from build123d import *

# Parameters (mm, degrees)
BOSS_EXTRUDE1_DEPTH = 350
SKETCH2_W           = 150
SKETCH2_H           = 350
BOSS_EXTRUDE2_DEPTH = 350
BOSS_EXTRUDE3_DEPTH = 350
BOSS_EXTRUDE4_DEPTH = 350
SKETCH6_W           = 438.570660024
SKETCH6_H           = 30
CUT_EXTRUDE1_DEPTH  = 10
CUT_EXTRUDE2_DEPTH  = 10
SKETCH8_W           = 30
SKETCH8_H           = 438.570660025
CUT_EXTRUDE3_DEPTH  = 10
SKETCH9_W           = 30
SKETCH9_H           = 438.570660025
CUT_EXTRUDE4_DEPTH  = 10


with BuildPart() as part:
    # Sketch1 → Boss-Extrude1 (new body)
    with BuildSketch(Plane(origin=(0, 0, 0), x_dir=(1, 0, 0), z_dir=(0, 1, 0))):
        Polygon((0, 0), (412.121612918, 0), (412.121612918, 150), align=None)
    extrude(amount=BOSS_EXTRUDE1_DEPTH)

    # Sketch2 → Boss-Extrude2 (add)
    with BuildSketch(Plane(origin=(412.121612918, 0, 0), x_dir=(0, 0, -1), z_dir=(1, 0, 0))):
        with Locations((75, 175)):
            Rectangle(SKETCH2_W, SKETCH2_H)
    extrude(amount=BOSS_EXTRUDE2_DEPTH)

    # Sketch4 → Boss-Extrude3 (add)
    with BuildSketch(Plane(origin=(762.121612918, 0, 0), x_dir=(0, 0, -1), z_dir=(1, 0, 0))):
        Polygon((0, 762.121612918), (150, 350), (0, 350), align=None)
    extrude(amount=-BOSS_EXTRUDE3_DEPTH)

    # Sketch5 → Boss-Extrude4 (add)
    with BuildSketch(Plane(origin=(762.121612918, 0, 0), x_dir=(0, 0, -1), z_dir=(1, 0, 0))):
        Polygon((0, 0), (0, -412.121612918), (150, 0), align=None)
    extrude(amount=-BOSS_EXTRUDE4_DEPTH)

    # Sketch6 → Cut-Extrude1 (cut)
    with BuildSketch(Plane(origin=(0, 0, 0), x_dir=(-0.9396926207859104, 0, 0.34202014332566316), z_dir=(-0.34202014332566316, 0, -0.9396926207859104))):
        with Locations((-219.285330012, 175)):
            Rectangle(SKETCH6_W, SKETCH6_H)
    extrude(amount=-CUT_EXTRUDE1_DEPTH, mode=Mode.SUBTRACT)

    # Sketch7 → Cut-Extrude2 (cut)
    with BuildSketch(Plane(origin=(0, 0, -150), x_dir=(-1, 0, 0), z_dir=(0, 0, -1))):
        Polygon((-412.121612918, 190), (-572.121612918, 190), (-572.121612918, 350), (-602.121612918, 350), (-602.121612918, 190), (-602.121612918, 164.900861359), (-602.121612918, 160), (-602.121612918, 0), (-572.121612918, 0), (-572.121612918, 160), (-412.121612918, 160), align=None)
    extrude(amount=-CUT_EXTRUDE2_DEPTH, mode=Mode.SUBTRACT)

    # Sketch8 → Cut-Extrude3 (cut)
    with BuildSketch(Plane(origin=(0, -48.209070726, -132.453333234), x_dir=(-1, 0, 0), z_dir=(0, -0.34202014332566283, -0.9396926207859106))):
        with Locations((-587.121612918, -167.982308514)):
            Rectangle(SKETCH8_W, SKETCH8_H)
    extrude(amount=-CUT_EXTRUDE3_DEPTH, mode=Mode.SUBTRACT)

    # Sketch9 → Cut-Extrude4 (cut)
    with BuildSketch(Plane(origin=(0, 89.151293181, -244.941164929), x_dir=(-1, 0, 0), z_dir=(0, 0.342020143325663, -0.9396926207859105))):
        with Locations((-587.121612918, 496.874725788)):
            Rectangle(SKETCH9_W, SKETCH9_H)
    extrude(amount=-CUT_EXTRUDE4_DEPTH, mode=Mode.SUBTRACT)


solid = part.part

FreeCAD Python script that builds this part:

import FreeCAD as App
import Part
import Sketcher
from FreeCAD import Vector
Q = App.Units.Quantity

doc = App.newDocument("Part")
body = doc.addObject("PartDesign::Body", "Body")

sketch1 = doc.addObject("Sketcher::SketchObject", "Sketch")
body.addObject(sketch1)
sketch1.AttachmentSupport = (doc.XZ_Plane, [""])
sketch1.MapMode = "FlatFace"
sketch1.addGeometry(Part.LineSegment(Vector(0, 0, 0), Vector(412, 0, 0)), False)
sketch1.addGeometry(Part.LineSegment(Vector(412, 0, 0), Vector(412, -150, 0)), False)
sketch1.addGeometry(Part.LineSegment(Vector(412, -150, 0), Vector(0, 0, 0)), False)
sketch1.addConstraint(Sketcher.Constraint("Coincident", 0, 2, 1, 1))
sketch1.addConstraint(Sketcher.Constraint("Coincident", 1, 2, 2, 1))
sketch1.addConstraint(Sketcher.Constraint("Coincident", 2, 2, 0, 1))
sketch1.addConstraint(Sketcher.Constraint("Horizontal", 0))
sketch1.addConstraint(Sketcher.Constraint("Vertical", 1))
sketch1.addConstraint(Sketcher.Constraint("Coincident", 2, 2, -1, 1))
sketch1.addConstraint(Sketcher.Constraint("DistanceY", 1, 2, 1, 1, 150.0))
sketch1.addConstraint(Sketcher.Constraint("Angle", 2, Q("160 deg")))
pad1 = doc.addObject("PartDesign::Pad", "Pad")
body.addObject(pad1)
pad1.Profile = sketch1
pad1.Length = 350
pad1.Reversed = True

sketch2 = doc.addObject("Sketcher::SketchObject", "Sketch001")
body.addObject(sketch2)
sketch2.AttachmentSupport = (doc.YZ_Plane, [""])
sketch2.MapMode = "FlatFace"
sketch2.AttachmentOffset = App.Placement(Vector(0, 0, 412.121613), App.Rotation())
sketch2.addGeometry(Part.LineSegment(Vector(350, 0, 0), Vector(0, 0, 0)), False)
sketch2.addGeometry(Part.LineSegment(Vector(0, 0, 0), Vector(0, -150, 0)), False)
sketch2.addGeometry(Part.LineSegment(Vector(0, -150, 0), Vector(350, -150, 0)), False)
sketch2.addGeometry(Part.LineSegment(Vector(350, -150, 0), Vector(350, 0, 0)), False)
sketch2.addConstraint(Sketcher.Constraint("Coincident", 0, 2, 1, 1))
sketch2.addConstraint(Sketcher.Constraint("Coincident", 1, 2, 2, 1))
sketch2.addConstraint(Sketcher.Constraint("Coincident", 2, 2, 3, 1))
sketch2.addConstraint(Sketcher.Constraint("Coincident", 3, 2, 0, 1))
sketch2.addConstraint(Sketcher.Constraint("Horizontal", 0))
sketch2.addConstraint(Sketcher.Constraint("Vertical", 1))
sketch2.addConstraint(Sketcher.Constraint("Horizontal", 2))
sketch2.addConstraint(Sketcher.Constraint("Vertical", 3))
sketch2.addConstraint(Sketcher.Constraint("Coincident", 0, 2, -1, 1))
sketch2.addConstraint(Sketcher.Constraint("DistanceX", 0, 2, 0, 1, 350.0))
sketch2.addConstraint(Sketcher.Constraint("DistanceY", 1, 2, 1, 1, 150.0))
pad2 = doc.addObject("PartDesign::Pad", "Pad001")
body.addObject(pad2)
pad2.Profile = sketch2
pad2.Length = 350

sketch3 = doc.addObject("Sketcher::SketchObject", "Sketch002")
body.addObject(sketch3)
sketch3.AttachmentSupport = (doc.YZ_Plane, [""])
sketch3.MapMode = "FlatFace"
sketch3.AttachmentOffset = App.Placement(Vector(0, 0, 762.121613), App.Rotation())
sketch3.addGeometry(Part.LineSegment(Vector(350, -150, 0), Vector(762, 0, 0)), False)
sketch3.addGeometry(Part.LineSegment(Vector(762, 0, 0), Vector(350, 0, 0)), False)
sketch3.addGeometry(Part.LineSegment(Vector(350, 0, 0), Vector(350, -150, 0)), False)
sketch3.addConstraint(Sketcher.Constraint("Coincident", 0, 2, 1, 1))
sketch3.addConstraint(Sketcher.Constraint("Coincident", 1, 2, 2, 1))
sketch3.addConstraint(Sketcher.Constraint("Coincident", 2, 2, 0, 1))
sketch3.addConstraint(Sketcher.Constraint("Horizontal", 1))
sketch3.addConstraint(Sketcher.Constraint("Vertical", 2))
sketch3.addConstraint(Sketcher.Constraint("PointOnObject", 0, 2, -1))
sketch3.addConstraint(Sketcher.Constraint("DistanceY", 2, 2, 2, 1, 150.0))
sketch3.addConstraint(Sketcher.Constraint("Angle", 0, Q("20 deg")))
sketch3.addConstraint(Sketcher.Constraint("DistanceX", -1, 1, 1, 2, 350.0))
pad3 = doc.addObject("PartDesign::Pad", "Pad002")
body.addObject(pad3)
pad3.Profile = sketch3
pad3.Length = 350
pad3.Reversed = True

sketch4 = doc.addObject("Sketcher::SketchObject", "Sketch003")
body.addObject(sketch4)
sketch4.AttachmentSupport = (doc.YZ_Plane, [""])
sketch4.MapMode = "FlatFace"
sketch4.AttachmentOffset = App.Placement(Vector(0, 0, 762.121613), App.Rotation())
sketch4.addGeometry(Part.LineSegment(Vector(0, 0, 0), Vector(-412, 0, 0)), False)
sketch4.addGeometry(Part.LineSegment(Vector(-412, 0, 0), Vector(0, -150, 0)), False)
sketch4.addGeometry(Part.LineSegment(Vector(0, -150, 0), Vector(0, 0, 0)), False)
sketch4.addConstraint(Sketcher.Constraint("Coincident", 0, 2, 1, 1))
sketch4.addConstraint(Sketcher.Constraint("Coincident", 1, 2, 2, 1))
sketch4.addConstraint(Sketcher.Constraint("Coincident", 2, 2, 0, 1))
sketch4.addConstraint(Sketcher.Constraint("Horizontal", 0))
sketch4.addConstraint(Sketcher.Constraint("Vertical", 2))
sketch4.addConstraint(Sketcher.Constraint("Coincident", 2, 2, -1, 1))
sketch4.addConstraint(Sketcher.Constraint("DistanceY", 2, 1, 2, 2, 150.0))
sketch4.addConstraint(Sketcher.Constraint("Angle", 1, Q("-20 deg")))
pad4 = doc.addObject("PartDesign::Pad", "Pad003")
body.addObject(pad4)
pad4.Profile = sketch4
pad4.Length = 350
pad4.Reversed = True

sketch5 = doc.addObject("Sketcher::SketchObject", "Sketch004")
body.addObject(sketch5)
sketch5.Placement = App.Placement(Vector(0, 0, 0), App.Rotation(Vector(-0.939692621, 0, 0.342020143), Vector(0, 1, 0), Vector(-0.342020143, 0, -0.939692621), "ZXY"))
sketch5.addGeometry(Part.LineSegment(Vector(-439, 190, 0), Vector(-439, 160, 0)), False)
sketch5.addGeometry(Part.LineSegment(Vector(-439, 160, 0), Vector(0, 160, 0)), False)
sketch5.addGeometry(Part.LineSegment(Vector(0, 160, 0), Vector(0, 190, 0)), False)
sketch5.addGeometry(Part.LineSegment(Vector(0, 190, 0), Vector(-439, 190, 0)), False)
sketch5.addConstraint(Sketcher.Constraint("Coincident", 0, 2, 1, 1))
sketch5.addConstraint(Sketcher.Constraint("Coincident", 1, 2, 2, 1))
sketch5.addConstraint(Sketcher.Constraint("Coincident", 2, 2, 3, 1))
sketch5.addConstraint(Sketcher.Constraint("Coincident", 3, 2, 0, 1))
sketch5.addConstraint(Sketcher.Constraint("Vertical", 0))
sketch5.addConstraint(Sketcher.Constraint("Horizontal", 1))
sketch5.addConstraint(Sketcher.Constraint("Vertical", 2))
sketch5.addConstraint(Sketcher.Constraint("Horizontal", 3))
sketch5.addConstraint(Sketcher.Constraint("PointOnObject", 1, 2, -2))
sketch5.addConstraint(Sketcher.Constraint("DistanceY", 0, 2, 0, 1, 30.0))
sketch5.addConstraint(Sketcher.Constraint("DistanceY", -1, 1, 0, 2, 160.0))
sketch5.addConstraint(Sketcher.Constraint("DistanceX", 1, 1, 1, 2, 438.57066))
pocket1 = doc.addObject("PartDesign::Pocket", "Pocket")
body.addObject(pocket1)
pocket1.Profile = sketch5
pocket1.Length = 10

sketch6 = doc.addObject("Sketcher::SketchObject", "Sketch005")
body.addObject(sketch6)
sketch6.AttachmentSupport = (doc.XY_Plane, [""])
sketch6.MapMode = "FlatFace"
sketch6.AttachmentOffset = App.Placement(Vector(0, 0, -150), App.Rotation())
sketch6.addGeometry(Part.LineSegment(Vector(412, 190, 0), Vector(572, 190, 0)), False)
sketch6.addGeometry(Part.LineSegment(Vector(572, 190, 0), Vector(572, 350, 0)), False)
sketch6.addGeometry(Part.LineSegment(Vector(572, 350, 0), Vector(602, 350, 0)), False)
sketch6.addGeometry(Part.LineSegment(Vector(602, 350, 0), Vector(602, 0, 0)), False)
sketch6.addGeometry(Part.LineSegment(Vector(602, 0, 0), Vector(572, 0, 0)), False)
sketch6.addGeometry(Part.LineSegment(Vector(572, 0, 0), Vector(572, 160, 0)), False)
sketch6.addGeometry(Part.LineSegment(Vector(572, 160, 0), Vector(412, 160, 0)), False)
sketch6.addGeometry(Part.LineSegment(Vector(412, 160, 0), Vector(412, 190, 0)), False)
sketch6.addConstraint(Sketcher.Constraint("Coincident", 0, 2, 1, 1))
sketch6.addConstraint(Sketcher.Constraint("Coincident", 1, 2, 2, 1))
sketch6.addConstraint(Sketcher.Constraint("Coincident", 2, 2, 3, 1))
sketch6.addConstraint(Sketcher.Constraint("Coincident", 3, 2, 4, 1))
sketch6.addConstraint(Sketcher.Constraint("Coincident", 4, 2, 5, 1))
sketch6.addConstraint(Sketcher.Constraint("Coincident", 5, 2, 6, 1))
sketch6.addConstraint(Sketcher.Constraint("Coincident", 6, 2, 7, 1))
sketch6.addConstraint(Sketcher.Constraint("Coincident", 7, 2, 0, 1))
sketch6.addConstraint(Sketcher.Constraint("Horizontal", 0))
sketch6.addConstraint(Sketcher.Constraint("Vertical", 1))
sketch6.addConstraint(Sketcher.Constraint("Horizontal", 2))
sketch6.addConstraint(Sketcher.Constraint("Vertical", 3))
sketch6.addConstraint(Sketcher.Constraint("Horizontal", 4))
sketch6.addConstraint(Sketcher.Constraint("Vertical", 5))
sketch6.addConstraint(Sketcher.Constraint("Horizontal", 6))
sketch6.addConstraint(Sketcher.Constraint("Vertical", 7))
sketch6.addConstraint(Sketcher.Constraint("PointOnObject", 3, 2, -1))
sketch6.addConstraint(Sketcher.Constraint("Vertical", 1, 2, 4, 2))
sketch6.addConstraint(Sketcher.Constraint("Equal", 6, 1))
sketch6.addConstraint(Sketcher.Constraint("Equal", 1, 5))
sketch6.addConstraint(Sketcher.Constraint("Equal", 4, 7))
sketch6.addConstraint(Sketcher.Constraint("DistanceX", 0, 1, 0, 2, 160.0))
sketch6.addConstraint(Sketcher.Constraint("DistanceX", 2, 1, 2, 2, 30.0))
sketch6.addConstraint(Sketcher.Constraint("DistanceX", -1, 1, 0, 2, 572.121613))
pocket2 = doc.addObject("PartDesign::Pocket", "Pocket001")
body.addObject(pocket2)
pocket2.Profile = sketch6
pocket2.Length = 10
pocket2.Reversed = True

sketch7 = doc.addObject("Sketcher::SketchObject", "Sketch006")
body.addObject(sketch7)
sketch7.Placement = App.Placement(Vector(0, -48.209071, -132.453333), App.Rotation(Vector(-1, 0, 0), Vector(0, 0.939692621, -0.342020143), Vector(0, -0.342020143, -0.939692621), "ZXY"))
sketch7.addGeometry(Part.LineSegment(Vector(-602, 51, 0), Vector(-602, -387, 0)), False)
sketch7.addGeometry(Part.LineSegment(Vector(-602, -387, 0), Vector(-572, -387, 0)), False)
sketch7.addGeometry(Part.LineSegment(Vector(-572, -387, 0), Vector(-572, 51, 0)), False)
sketch7.addGeometry(Part.LineSegment(Vector(-572, 51, 0), Vector(-602, 51, 0)), False)
sketch7.addConstraint(Sketcher.Constraint("Coincident", 0, 2, 1, 1))
sketch7.addConstraint(Sketcher.Constraint("Coincident", 1, 2, 2, 1))
sketch7.addConstraint(Sketcher.Constraint("Coincident", 2, 2, 3, 1))
sketch7.addConstraint(Sketcher.Constraint("Coincident", 3, 2, 0, 1))
sketch7.addConstraint(Sketcher.Constraint("Vertical", 0))
sketch7.addConstraint(Sketcher.Constraint("Horizontal", 1))
sketch7.addConstraint(Sketcher.Constraint("Vertical", 2))
sketch7.addConstraint(Sketcher.Constraint("Horizontal", 3))
sketch7.addConstraint(Sketcher.Constraint("DistanceX", 1, 1, 1, 2, 30.0))
sketch7.addConstraint(Sketcher.Constraint("DistanceY", 0, 2, 0, 1, 438.57066))
sketch7.addConstraint(Sketcher.Constraint("DistanceY", 0, 2, -1, 1, 387.267639))
sketch7.addConstraint(Sketcher.Constraint("DistanceX", 0, 2, -1, 1, 602.121613))
pocket3 = doc.addObject("PartDesign::Pocket", "Pocket002")
body.addObject(pocket3)
pocket3.Profile = sketch7
pocket3.Length = 10

sketch8 = doc.addObject("Sketcher::SketchObject", "Sketch007")
body.addObject(sketch8)
sketch8.Placement = App.Placement(Vector(0, 89.151293, -244.941165), App.Rotation(Vector(-1, 0, 0), Vector(0, 0.939692621, 0.342020143), Vector(0, 0.342020143, -0.939692621), "ZXY"))
sketch8.addGeometry(Part.LineSegment(Vector(-602, 716, 0), Vector(-602, 278, 0)), False)
sketch8.addGeometry(Part.LineSegment(Vector(-602, 278, 0), Vector(-572, 278, 0)), False)
sketch8.addGeometry(Part.LineSegment(Vector(-572, 278, 0), Vector(-572, 716, 0)), False)
sketch8.addGeometry(Part.LineSegment(Vector(-572, 716, 0), Vector(-602, 716, 0)), False)
sketch8.addConstraint(Sketcher.Constraint("Coincident", 0, 2, 1, 1))
sketch8.addConstraint(Sketcher.Constraint("Coincident", 1, 2, 2, 1))
sketch8.addConstraint(Sketcher.Constraint("Coincident", 2, 2, 3, 1))
sketch8.addConstraint(Sketcher.Constraint("Coincident", 3, 2, 0, 1))
sketch8.addConstraint(Sketcher.Constraint("Vertical", 0))
sketch8.addConstraint(Sketcher.Constraint("Horizontal", 1))
sketch8.addConstraint(Sketcher.Constraint("Vertical", 2))
sketch8.addConstraint(Sketcher.Constraint("Horizontal", 3))
sketch8.addConstraint(Sketcher.Constraint("DistanceX", 1, 1, 1, 2, 30.0))
sketch8.addConstraint(Sketcher.Constraint("DistanceY", 0, 2, 0, 1, 438.57066))
sketch8.addConstraint(Sketcher.Constraint("DistanceX", 0, 2, -1, 1, 602.121613))
sketch8.addConstraint(Sketcher.Constraint("DistanceY", -1, 1, 0, 2, 277.589396))
pocket4 = doc.addObject("PartDesign::Pocket", "Pocket003")
body.addObject(pocket4)
pocket4.Profile = sketch8
pocket4.Length = 10

doc.recompute()
